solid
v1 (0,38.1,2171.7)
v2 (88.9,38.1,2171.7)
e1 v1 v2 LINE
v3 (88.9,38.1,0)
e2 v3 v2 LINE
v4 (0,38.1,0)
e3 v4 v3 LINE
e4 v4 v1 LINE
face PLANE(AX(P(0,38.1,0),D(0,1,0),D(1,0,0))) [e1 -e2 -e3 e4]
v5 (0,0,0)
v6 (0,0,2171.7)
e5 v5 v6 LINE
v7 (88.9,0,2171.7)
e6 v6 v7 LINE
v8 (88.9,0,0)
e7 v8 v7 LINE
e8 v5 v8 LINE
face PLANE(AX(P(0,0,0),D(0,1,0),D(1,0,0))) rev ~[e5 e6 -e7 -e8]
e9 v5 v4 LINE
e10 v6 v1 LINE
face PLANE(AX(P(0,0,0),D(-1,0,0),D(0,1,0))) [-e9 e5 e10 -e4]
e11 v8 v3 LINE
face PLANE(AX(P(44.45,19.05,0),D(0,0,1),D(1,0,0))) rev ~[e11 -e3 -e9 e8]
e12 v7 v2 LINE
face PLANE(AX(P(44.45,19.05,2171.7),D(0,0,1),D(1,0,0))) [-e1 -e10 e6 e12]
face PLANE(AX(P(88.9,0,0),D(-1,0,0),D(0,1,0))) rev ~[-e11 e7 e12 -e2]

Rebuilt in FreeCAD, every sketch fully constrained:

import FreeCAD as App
import Part
import Sketcher

V = App.Vector
Q = App.Units.Quantity


def add_polygon(sketch, points):
    """Adds a closed chain of lines whose ends are joined by coincident constraints."""
    first, n = sketch.GeometryCount, len(points)
    for a, b in zip(points, points[1:] + points[:1]):
        sketch.addGeometry(Part.LineSegment(App.Vector(*a, 0), App.Vector(*b, 0)), False)
    for i in range(n):
        sketch.addConstraint(Sketcher.Constraint("Coincident", first + i, 2, first + (i + 1) % n, 1))

doc = App.newDocument("Part")
body = doc.addObject("PartDesign::Body", "Body")

# Sketch on XY plane
sketch1 = body.newObject("Sketcher::SketchObject", "Sketch")
sketch1.AttachmentSupport = (doc.getObject("XY_Plane"), [""])
sketch1.MapMode = "FlatFace"
add_polygon(sketch1, [(0, 38), (0, 0), (89, 0), (89, 38)])  # lines 0-3
sketch1.addConstraint(Sketcher.Constraint("Vertical", 0))
sketch1.addConstraint(Sketcher.Constraint("Horizontal", 1))
sketch1.addConstraint(Sketcher.Constraint("Vertical", 2))
sketch1.addConstraint(Sketcher.Constraint("Horizontal", 3))
sketch1.addConstraint(Sketcher.Constraint("Coincident", 0, 2, -1, 1))
sketch1.addConstraint(Sketcher.Constraint("DistanceX", 1, 1, 1, 2, Q("3.5 in")))
sketch1.addConstraint(Sketcher.Constraint("DistanceY", 0, 2, 0, 1, Q("1.5 in")))
pad1 = body.newObject("PartDesign::Pad", "Pad")
pad1.Profile = sketch1
pad1.Length = Q("85.5 in")

doc.recompute()
